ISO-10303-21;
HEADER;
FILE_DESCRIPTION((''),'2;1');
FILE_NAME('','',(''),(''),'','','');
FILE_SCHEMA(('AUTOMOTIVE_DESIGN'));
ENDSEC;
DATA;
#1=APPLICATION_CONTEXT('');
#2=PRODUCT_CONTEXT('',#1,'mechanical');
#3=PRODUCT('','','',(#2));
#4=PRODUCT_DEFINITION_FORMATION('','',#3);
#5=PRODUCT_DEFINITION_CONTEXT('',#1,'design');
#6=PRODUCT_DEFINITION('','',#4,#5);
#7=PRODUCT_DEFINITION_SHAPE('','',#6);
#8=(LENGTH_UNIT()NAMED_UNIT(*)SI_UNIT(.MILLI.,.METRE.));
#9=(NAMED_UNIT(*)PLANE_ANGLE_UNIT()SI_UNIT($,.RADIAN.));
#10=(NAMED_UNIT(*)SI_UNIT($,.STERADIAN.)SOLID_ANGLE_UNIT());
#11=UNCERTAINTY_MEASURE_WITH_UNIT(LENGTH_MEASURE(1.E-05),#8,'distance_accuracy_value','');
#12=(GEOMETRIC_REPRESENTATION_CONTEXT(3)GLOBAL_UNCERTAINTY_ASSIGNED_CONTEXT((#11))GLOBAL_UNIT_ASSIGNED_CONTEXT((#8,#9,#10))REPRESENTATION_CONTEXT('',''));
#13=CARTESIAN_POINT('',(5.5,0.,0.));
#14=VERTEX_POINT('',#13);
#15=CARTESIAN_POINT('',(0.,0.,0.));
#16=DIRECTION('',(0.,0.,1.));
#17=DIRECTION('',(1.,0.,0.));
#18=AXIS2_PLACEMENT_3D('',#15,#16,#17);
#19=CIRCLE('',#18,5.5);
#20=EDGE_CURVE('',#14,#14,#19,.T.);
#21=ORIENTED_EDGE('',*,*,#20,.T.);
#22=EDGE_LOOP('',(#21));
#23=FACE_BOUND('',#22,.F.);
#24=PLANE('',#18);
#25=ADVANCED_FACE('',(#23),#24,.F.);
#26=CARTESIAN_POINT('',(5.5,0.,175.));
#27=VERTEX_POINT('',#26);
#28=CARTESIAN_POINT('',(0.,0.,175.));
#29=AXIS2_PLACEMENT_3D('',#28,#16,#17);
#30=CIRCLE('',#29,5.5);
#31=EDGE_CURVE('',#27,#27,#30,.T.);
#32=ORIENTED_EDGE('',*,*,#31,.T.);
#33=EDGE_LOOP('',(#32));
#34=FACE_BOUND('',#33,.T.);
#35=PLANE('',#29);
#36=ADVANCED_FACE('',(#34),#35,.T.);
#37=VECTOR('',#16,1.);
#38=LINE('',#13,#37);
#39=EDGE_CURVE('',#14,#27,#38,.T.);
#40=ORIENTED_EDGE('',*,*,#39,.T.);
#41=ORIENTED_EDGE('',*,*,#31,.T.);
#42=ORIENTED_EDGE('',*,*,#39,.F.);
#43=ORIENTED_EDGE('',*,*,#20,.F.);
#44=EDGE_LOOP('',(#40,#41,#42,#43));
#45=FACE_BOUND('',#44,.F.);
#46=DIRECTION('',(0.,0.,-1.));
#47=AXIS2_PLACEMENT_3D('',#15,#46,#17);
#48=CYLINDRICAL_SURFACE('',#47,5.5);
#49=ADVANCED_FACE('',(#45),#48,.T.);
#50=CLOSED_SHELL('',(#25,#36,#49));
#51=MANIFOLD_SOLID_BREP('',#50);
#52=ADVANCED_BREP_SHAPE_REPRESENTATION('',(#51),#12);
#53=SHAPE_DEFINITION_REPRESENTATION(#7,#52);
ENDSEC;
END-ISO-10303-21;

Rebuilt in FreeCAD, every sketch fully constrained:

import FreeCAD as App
import Part
import Sketcher
from FreeCAD import Vector

doc = App.newDocument("Part")
body = doc.addObject("PartDesign::Body", "Body")

sketch1 = body.newObject("Sketcher::SketchObject", "Sketch")
sketch1.AttachmentSupport = (doc.getObject("XY_Plane"), [""])
sketch1.MapMode = "FlatFace"
sketch1.addGeometry(Part.Circle(Vector(0, 0, 0), Vector(0, 0, 1), 5.5), False)
sketch1.addConstraint([
    Sketcher.Constraint("Coincident", 0, 3, -1, 1),
    Sketcher.Constraint("Diameter", 0, 11.0),
])
pad1 = body.newObject("PartDesign::Pad", "Pad")
pad1.Profile = sketch1
pad1.Length = 175

doc.recompute()
